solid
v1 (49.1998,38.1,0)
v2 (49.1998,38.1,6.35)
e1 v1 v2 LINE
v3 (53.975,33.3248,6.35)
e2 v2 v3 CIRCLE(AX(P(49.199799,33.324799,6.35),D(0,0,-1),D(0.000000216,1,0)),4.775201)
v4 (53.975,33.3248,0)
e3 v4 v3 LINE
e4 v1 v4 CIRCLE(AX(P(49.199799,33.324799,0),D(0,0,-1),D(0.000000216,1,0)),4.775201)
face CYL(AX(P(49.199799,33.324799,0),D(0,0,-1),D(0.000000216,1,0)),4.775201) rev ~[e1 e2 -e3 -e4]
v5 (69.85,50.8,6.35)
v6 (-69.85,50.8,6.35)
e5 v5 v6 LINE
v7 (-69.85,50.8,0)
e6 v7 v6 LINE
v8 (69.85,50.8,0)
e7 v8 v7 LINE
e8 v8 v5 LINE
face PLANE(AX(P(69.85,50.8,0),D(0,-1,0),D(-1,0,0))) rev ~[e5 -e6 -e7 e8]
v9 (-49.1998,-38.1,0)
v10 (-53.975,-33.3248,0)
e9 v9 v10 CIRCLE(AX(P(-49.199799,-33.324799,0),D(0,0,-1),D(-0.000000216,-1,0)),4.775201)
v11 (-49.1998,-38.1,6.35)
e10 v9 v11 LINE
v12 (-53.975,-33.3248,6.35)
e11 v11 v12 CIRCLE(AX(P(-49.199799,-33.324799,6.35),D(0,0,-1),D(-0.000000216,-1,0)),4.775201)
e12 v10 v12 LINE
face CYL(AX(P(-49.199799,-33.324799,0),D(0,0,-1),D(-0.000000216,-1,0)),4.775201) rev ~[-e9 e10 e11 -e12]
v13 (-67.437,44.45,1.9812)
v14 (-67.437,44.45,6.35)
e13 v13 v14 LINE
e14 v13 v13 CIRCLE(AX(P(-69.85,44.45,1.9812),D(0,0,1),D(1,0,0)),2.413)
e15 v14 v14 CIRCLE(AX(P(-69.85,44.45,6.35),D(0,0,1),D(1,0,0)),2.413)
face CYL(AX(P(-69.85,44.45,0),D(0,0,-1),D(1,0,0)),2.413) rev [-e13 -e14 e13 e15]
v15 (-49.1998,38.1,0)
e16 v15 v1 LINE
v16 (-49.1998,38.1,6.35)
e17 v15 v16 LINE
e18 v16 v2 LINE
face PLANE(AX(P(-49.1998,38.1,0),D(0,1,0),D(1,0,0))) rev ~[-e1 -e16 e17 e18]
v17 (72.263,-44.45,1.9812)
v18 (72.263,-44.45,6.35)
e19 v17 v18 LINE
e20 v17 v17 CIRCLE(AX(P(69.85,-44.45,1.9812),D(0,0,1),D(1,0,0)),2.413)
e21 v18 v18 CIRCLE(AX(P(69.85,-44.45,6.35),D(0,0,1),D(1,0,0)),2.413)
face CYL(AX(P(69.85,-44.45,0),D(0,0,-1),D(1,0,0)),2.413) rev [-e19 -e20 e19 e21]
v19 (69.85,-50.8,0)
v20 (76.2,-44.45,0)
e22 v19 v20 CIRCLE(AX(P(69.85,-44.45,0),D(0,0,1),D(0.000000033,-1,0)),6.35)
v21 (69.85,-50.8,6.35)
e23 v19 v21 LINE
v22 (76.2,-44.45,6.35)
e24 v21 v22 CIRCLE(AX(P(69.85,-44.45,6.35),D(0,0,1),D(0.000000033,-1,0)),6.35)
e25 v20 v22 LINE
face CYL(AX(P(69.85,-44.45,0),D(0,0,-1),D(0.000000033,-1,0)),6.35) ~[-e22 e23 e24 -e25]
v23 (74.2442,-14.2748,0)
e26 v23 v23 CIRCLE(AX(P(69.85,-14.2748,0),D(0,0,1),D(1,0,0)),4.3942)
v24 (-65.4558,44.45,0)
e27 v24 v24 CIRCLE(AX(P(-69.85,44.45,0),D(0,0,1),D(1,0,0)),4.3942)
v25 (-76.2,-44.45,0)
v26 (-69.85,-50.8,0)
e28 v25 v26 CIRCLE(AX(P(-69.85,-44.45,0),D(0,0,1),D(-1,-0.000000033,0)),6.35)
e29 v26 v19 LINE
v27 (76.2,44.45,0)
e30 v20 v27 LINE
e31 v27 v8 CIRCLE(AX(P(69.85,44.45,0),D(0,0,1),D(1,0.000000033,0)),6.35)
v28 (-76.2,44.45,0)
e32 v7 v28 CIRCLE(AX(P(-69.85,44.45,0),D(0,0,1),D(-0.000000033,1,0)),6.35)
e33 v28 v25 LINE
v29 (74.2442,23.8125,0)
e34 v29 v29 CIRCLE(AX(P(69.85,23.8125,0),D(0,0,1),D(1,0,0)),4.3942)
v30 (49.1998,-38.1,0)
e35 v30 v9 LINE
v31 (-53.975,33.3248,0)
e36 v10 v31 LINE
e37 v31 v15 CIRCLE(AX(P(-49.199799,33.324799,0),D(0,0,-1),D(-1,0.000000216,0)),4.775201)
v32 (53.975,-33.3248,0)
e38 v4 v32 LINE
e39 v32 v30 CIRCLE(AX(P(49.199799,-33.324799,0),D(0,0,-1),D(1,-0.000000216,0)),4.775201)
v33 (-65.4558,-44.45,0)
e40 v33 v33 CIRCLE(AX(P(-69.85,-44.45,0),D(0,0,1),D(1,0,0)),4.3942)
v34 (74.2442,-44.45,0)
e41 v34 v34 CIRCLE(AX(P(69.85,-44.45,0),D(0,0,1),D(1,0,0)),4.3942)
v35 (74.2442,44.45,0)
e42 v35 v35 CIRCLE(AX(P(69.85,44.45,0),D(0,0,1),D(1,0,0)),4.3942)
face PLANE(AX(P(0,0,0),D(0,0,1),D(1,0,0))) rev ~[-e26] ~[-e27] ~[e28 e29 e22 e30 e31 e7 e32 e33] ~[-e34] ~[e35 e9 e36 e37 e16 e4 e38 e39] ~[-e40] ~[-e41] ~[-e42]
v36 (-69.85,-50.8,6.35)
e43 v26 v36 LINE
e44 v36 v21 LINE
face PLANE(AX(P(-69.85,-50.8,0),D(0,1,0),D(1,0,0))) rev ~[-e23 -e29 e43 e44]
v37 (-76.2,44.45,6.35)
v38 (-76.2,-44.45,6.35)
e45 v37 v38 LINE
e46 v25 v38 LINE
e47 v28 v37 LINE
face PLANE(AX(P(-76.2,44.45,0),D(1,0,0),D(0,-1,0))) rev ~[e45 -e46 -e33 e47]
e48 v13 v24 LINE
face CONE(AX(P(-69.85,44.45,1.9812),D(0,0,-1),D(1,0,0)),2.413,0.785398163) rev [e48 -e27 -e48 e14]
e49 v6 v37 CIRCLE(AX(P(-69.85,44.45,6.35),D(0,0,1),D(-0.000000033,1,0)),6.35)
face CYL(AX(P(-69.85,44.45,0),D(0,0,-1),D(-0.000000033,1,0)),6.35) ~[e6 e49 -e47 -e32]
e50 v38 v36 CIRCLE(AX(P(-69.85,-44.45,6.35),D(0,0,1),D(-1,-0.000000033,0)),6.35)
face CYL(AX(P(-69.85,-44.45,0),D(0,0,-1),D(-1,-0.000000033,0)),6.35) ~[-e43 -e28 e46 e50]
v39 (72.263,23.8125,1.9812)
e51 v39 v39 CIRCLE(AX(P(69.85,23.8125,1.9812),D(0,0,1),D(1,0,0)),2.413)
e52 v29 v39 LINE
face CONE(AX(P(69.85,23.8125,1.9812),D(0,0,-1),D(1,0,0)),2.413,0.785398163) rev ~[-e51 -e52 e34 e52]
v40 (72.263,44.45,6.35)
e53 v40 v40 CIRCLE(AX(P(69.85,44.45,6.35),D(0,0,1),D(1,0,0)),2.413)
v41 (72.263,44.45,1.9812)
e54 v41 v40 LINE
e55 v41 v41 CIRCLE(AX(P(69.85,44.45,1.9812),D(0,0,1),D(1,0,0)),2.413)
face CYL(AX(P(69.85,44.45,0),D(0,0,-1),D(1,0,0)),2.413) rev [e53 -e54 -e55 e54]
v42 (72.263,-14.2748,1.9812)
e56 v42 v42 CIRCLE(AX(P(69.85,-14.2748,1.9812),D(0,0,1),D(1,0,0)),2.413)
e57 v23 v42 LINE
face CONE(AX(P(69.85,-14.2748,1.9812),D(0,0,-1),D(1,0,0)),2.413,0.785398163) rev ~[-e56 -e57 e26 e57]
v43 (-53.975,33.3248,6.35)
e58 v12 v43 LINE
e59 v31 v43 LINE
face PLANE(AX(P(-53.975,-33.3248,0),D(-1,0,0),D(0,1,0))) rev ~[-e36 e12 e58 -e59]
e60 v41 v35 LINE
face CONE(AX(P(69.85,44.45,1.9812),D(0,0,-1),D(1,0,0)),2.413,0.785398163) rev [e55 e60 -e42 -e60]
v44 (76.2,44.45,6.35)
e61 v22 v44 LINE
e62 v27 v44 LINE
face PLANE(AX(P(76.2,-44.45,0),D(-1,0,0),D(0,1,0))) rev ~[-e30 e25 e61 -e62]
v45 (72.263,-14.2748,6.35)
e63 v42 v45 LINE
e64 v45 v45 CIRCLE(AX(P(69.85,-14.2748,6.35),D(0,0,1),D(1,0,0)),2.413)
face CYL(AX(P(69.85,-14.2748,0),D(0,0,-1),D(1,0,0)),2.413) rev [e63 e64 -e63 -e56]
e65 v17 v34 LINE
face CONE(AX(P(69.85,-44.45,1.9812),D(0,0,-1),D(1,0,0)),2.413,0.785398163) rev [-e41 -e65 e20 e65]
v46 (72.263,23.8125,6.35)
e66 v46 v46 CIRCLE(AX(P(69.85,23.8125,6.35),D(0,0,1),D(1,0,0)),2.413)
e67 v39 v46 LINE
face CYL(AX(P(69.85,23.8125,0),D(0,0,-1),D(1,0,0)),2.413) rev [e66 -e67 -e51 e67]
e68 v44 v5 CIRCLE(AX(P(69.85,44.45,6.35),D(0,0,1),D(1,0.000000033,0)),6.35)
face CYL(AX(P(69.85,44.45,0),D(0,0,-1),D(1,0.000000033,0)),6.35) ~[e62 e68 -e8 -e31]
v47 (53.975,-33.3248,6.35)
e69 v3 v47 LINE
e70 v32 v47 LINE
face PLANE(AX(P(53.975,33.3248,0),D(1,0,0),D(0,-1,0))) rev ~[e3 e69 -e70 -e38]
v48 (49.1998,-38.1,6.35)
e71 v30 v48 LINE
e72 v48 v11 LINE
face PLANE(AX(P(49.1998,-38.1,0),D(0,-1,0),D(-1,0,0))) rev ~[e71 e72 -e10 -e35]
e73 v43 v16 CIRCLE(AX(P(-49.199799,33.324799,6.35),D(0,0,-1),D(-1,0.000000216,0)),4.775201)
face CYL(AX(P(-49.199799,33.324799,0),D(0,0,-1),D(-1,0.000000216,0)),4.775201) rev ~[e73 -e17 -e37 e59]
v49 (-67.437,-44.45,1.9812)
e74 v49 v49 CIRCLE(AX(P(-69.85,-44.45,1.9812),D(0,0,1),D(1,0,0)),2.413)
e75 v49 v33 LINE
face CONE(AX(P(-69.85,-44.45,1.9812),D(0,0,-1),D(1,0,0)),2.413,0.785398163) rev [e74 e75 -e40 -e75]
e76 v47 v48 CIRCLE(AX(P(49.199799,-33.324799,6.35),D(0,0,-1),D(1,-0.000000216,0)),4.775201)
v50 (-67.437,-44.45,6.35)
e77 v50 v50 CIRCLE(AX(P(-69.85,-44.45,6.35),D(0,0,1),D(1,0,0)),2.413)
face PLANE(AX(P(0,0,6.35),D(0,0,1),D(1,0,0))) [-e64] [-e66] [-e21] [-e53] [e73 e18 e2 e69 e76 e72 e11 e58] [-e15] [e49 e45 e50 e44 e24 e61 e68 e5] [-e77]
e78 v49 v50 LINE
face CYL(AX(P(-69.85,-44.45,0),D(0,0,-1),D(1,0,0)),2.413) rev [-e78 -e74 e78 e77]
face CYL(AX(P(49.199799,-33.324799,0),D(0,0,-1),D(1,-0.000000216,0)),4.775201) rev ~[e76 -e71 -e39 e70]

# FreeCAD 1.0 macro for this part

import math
import FreeCAD as App
import Part
import Sketcher
from FreeCAD import Vector
Q = App.Units.Quantity


def edges_at(feature, points):
    """Names of the edges that pass closest to the given points."""
    edges = feature.Shape.Edges
    near = lambda p: min(range(len(edges)), key=lambda i: edges[i].distToShape(Part.Vertex(*p))[0])
    return sorted({f"Edge{near(p) + 1}" for p in points})

doc = App.newDocument("Part")
body = doc.addObject("PartDesign::Body", "Body")

# Sketch on XY plane
sketch1 = body.newObject("Sketcher::SketchObject", "Sketch")
sketch1.AttachmentSupport = (doc.getObject("XY_Plane"), [""])
sketch1.MapMode = "FlatFace"
sketch1.addGeometry([
    Part.ArcOfCircle(Part.Circle(Vector(-69.85, -44.45, 0), Vector(0, 0, 1), 6.35), math.radians(-179.999998), math.radians(-90.000002)),  # 0
    Part.LineSegment(Vector(-69.85, -50.8, 0), Vector(69.85, -50.8, 0)),  # 1
    Part.ArcOfCircle(Part.Circle(Vector(69.85, -44.45, 0), Vector(0, 0, 1), 6.35), math.radians(-89.999998), math.radians(-0.000002)),  # 2
    Part.LineSegment(Vector(76.2, -44.45, 0), Vector(76.2, 44.45, 0)),  # 3
    Part.ArcOfCircle(Part.Circle(Vector(69.85, 44.45, 0), Vector(0, 0, 1), 6.35), math.radians(0.000002), math.radians(89.999998)),  # 4
    Part.LineSegment(Vector(69.85, 50.8, 0), Vector(-69.85, 50.8, 0)),  # 5
    Part.ArcOfCircle(Part.Circle(Vector(-69.85, 44.45, 0), Vector(0, 0, 1), 6.35), math.radians(90.000002), math.radians(179.999998)),  # 6
    Part.LineSegment(Vector(-76.2, 44.45, 0), Vector(-76.2, -44.45, 0)),  # 7
    Part.Circle(Vector(-69.85, -44.45, 0), Vector(0, 0, 1), 2.413),  # 8
    Part.Circle(Vector(69.85, -44.45, 0), Vector(0, 0, 1), 2.413),  # 9
    Part.Circle(Vector(69.85, -14.2748, 0), Vector(0, 0, 1), 2.413),  # 10
    Part.Circle(Vector(-69.85, 44.45, 0), Vector(0, 0, 1), 2.413),  # 11
    Part.LineSegment(Vector(-53.975, -33.3248, 0), Vector(-53.975, 33.3248, 0)),  # 12
    Part.ArcOfCircle(Part.Circle(Vector(-49.199799, 33.324799, 0), Vector(0, 0, 1), 4.775201), math.radians(90.000012), math.radians(179.999988)),  # 13
    Part.LineSegment(Vector(-49.1998, 38.1, 0), Vector(49.1998, 38.1, 0)),  # 14
    Part.ArcOfCircle(Part.Circle(Vector(49.199799, 33.324799, 0), Vector(0, 0, 1), 4.775201), math.radians(0.000012), math.radians(89.999988)),  # 15
    Part.LineSegment(Vector(53.975, 33.3248, 0), Vector(53.975, -33.3248, 0)),  # 16
    Part.ArcOfCircle(Part.Circle(Vector(49.199799, -33.324799, 0), Vector(0, 0, 1), 4.775201), math.radians(-89.999988), math.radians(-0.000012)),  # 17
    Part.LineSegment(Vector(49.1998, -38.1, 0), Vector(-49.1998, -38.1, 0)),  # 18
    Part.ArcOfCircle(Part.Circle(Vector(-49.199799, -33.324799, 0), Vector(0, 0, 1), 4.775201), math.radians(-179.999988), math.radians(-90.000012)),  # 19
    Part.Circle(Vector(69.85, 23.8125, 0), Vector(0, 0, 1), 2.413),  # 20
    Part.Circle(Vector(69.85, 44.45, 0), Vector(0, 0, 1), 2.413),  # 21
], False)
sketch1.addConstraint([
    Sketcher.Constraint("Tangent", 0, 2, 1, 1),
    Sketcher.Constraint("Tangent", 1, 2, 2, 1),
    Sketcher.Constraint("Tangent", 2, 2, 3, 1),
    Sketcher.Constraint("Tangent", 3, 2, 4, 1),
    Sketcher.Constraint("Tangent", 4, 2, 5, 1),
    Sketcher.Constraint("Tangent", 5, 2, 6, 1),
    Sketcher.Constraint("Tangent", 6, 2, 7, 1),
    Sketcher.Constraint("Tangent", 7, 2, 0, 1),
    Sketcher.Constraint("Tangent", 12, 2, 13, 2),
    Sketcher.Constraint("Tangent", 13, 1, 14, 1),
    Sketcher.Constraint("Tangent", 14, 2, 15, 2),
    Sketcher.Constraint("Tangent", 15, 1, 16, 1),
    Sketcher.Constraint("Tangent", 16, 2, 17, 2),
    Sketcher.Constraint("Tangent", 17, 1, 18, 1),
    Sketcher.Constraint("Tangent", 18, 2, 19, 2),
    Sketcher.Constraint("Tangent", 19, 1, 12, 1),
    Sketcher.Constraint("Horizontal", 1),
    Sketcher.Constraint("Vertical", 3),
    Sketcher.Constraint("Horizontal", 5),
    Sketcher.Constraint("Vertical", 7),
    Sketcher.Constraint("Vertical", 12),
    Sketcher.Constraint("Horizontal", 14),
    Sketcher.Constraint("Vertical", 16),
    Sketcher.Constraint("Horizontal", 18),
    Sketcher.Constraint("Coincident", 8, 3, 0, 3),
    Sketcher.Constraint("Coincident", 9, 3, 2, 3),
    Sketcher.Constraint("Coincident", 11, 3, 6, 3),
    Sketcher.Constraint("Coincident", 21, 3, 4, 3),
    Sketcher.Constraint("Equal", 0, 2),
    Sketcher.Constraint("Equal", 2, 4),
    Sketcher.Constraint("Equal", 4, 6),
    Sketcher.Constraint("Equal", 8, 9),
    Sketcher.Constraint("Equal", 9, 10),
    Sketcher.Constraint("Equal", 10, 11),
    Sketcher.Constraint("Equal", 13, 15),
    Sketcher.Constraint("Equal", 15, 17),
    Sketcher.Constraint("Equal", 17, 19),
    Sketcher.Constraint("Equal", 11, 20),
    Sketcher.Constraint("Equal", 20, 21),
    Sketcher.Constraint("Symmetric", 0, 3, 4, 3, -1, 1),
    Sketcher.Constraint("Symmetric", 13, 3, 17, 3, -1, 1),
    Sketcher.Constraint("Vertical", 9, 3, 10, 3),
    Sketcher.Constraint("Vertical", 10, 3, 20, 3),
    Sketcher.Constraint("Diameter", 8, Q("0.19 in")),
    Sketcher.Constraint("Radius", 0, Q("0.25 in")),
    Sketcher.Constraint("DistanceX", 1, 1, 1, 2, Q("5.5 in")),
    Sketcher.Constraint("DistanceY", 3, 1, 3, 2, Q("3.5 in")),
    Sketcher.Constraint("Radius", 13, Q("0.188 in")),
    Sketcher.Constraint("DistanceY", -1, 1, 13, 1, Q("1.5 in")),
    Sketcher.Constraint("DistanceX", 14, 1, 14, 2, Q("3.874 in")),
    Sketcher.Constraint("DistanceY", 17, 3, 10, 3, Q("0.75 in")),
    Sketcher.Constraint("DistanceY", -1, 1, 20, 3, Q("0.9375 in")),
])
pad1 = body.newObject("PartDesign::Pad", "Pad")
pad1.Profile = sketch1
pad1.Length = Q("0.25 in")
doc.recompute()

chamfer = body.newObject("PartDesign::Chamfer", "Chamfer")
chamfer.Base = (pad1, edges_at(pad1, [
    (-72.263, 44.45, 0),
    (-72.263, -44.45, 0),
    (67.437, 44.45, 0),
    (67.437, -44.45, 0),
]))
chamfer.Size = Q("0.078 in")
doc.recompute()

chamfer2 = body.newObject("PartDesign::Chamfer", "Chamfer001")
chamfer2.Base = (chamfer, edges_at(chamfer, [(67.437, 23.812, 0), (67.437, -14.275, 0)]))
chamfer2.Size = Q("0.078 in")

doc.recompute()
